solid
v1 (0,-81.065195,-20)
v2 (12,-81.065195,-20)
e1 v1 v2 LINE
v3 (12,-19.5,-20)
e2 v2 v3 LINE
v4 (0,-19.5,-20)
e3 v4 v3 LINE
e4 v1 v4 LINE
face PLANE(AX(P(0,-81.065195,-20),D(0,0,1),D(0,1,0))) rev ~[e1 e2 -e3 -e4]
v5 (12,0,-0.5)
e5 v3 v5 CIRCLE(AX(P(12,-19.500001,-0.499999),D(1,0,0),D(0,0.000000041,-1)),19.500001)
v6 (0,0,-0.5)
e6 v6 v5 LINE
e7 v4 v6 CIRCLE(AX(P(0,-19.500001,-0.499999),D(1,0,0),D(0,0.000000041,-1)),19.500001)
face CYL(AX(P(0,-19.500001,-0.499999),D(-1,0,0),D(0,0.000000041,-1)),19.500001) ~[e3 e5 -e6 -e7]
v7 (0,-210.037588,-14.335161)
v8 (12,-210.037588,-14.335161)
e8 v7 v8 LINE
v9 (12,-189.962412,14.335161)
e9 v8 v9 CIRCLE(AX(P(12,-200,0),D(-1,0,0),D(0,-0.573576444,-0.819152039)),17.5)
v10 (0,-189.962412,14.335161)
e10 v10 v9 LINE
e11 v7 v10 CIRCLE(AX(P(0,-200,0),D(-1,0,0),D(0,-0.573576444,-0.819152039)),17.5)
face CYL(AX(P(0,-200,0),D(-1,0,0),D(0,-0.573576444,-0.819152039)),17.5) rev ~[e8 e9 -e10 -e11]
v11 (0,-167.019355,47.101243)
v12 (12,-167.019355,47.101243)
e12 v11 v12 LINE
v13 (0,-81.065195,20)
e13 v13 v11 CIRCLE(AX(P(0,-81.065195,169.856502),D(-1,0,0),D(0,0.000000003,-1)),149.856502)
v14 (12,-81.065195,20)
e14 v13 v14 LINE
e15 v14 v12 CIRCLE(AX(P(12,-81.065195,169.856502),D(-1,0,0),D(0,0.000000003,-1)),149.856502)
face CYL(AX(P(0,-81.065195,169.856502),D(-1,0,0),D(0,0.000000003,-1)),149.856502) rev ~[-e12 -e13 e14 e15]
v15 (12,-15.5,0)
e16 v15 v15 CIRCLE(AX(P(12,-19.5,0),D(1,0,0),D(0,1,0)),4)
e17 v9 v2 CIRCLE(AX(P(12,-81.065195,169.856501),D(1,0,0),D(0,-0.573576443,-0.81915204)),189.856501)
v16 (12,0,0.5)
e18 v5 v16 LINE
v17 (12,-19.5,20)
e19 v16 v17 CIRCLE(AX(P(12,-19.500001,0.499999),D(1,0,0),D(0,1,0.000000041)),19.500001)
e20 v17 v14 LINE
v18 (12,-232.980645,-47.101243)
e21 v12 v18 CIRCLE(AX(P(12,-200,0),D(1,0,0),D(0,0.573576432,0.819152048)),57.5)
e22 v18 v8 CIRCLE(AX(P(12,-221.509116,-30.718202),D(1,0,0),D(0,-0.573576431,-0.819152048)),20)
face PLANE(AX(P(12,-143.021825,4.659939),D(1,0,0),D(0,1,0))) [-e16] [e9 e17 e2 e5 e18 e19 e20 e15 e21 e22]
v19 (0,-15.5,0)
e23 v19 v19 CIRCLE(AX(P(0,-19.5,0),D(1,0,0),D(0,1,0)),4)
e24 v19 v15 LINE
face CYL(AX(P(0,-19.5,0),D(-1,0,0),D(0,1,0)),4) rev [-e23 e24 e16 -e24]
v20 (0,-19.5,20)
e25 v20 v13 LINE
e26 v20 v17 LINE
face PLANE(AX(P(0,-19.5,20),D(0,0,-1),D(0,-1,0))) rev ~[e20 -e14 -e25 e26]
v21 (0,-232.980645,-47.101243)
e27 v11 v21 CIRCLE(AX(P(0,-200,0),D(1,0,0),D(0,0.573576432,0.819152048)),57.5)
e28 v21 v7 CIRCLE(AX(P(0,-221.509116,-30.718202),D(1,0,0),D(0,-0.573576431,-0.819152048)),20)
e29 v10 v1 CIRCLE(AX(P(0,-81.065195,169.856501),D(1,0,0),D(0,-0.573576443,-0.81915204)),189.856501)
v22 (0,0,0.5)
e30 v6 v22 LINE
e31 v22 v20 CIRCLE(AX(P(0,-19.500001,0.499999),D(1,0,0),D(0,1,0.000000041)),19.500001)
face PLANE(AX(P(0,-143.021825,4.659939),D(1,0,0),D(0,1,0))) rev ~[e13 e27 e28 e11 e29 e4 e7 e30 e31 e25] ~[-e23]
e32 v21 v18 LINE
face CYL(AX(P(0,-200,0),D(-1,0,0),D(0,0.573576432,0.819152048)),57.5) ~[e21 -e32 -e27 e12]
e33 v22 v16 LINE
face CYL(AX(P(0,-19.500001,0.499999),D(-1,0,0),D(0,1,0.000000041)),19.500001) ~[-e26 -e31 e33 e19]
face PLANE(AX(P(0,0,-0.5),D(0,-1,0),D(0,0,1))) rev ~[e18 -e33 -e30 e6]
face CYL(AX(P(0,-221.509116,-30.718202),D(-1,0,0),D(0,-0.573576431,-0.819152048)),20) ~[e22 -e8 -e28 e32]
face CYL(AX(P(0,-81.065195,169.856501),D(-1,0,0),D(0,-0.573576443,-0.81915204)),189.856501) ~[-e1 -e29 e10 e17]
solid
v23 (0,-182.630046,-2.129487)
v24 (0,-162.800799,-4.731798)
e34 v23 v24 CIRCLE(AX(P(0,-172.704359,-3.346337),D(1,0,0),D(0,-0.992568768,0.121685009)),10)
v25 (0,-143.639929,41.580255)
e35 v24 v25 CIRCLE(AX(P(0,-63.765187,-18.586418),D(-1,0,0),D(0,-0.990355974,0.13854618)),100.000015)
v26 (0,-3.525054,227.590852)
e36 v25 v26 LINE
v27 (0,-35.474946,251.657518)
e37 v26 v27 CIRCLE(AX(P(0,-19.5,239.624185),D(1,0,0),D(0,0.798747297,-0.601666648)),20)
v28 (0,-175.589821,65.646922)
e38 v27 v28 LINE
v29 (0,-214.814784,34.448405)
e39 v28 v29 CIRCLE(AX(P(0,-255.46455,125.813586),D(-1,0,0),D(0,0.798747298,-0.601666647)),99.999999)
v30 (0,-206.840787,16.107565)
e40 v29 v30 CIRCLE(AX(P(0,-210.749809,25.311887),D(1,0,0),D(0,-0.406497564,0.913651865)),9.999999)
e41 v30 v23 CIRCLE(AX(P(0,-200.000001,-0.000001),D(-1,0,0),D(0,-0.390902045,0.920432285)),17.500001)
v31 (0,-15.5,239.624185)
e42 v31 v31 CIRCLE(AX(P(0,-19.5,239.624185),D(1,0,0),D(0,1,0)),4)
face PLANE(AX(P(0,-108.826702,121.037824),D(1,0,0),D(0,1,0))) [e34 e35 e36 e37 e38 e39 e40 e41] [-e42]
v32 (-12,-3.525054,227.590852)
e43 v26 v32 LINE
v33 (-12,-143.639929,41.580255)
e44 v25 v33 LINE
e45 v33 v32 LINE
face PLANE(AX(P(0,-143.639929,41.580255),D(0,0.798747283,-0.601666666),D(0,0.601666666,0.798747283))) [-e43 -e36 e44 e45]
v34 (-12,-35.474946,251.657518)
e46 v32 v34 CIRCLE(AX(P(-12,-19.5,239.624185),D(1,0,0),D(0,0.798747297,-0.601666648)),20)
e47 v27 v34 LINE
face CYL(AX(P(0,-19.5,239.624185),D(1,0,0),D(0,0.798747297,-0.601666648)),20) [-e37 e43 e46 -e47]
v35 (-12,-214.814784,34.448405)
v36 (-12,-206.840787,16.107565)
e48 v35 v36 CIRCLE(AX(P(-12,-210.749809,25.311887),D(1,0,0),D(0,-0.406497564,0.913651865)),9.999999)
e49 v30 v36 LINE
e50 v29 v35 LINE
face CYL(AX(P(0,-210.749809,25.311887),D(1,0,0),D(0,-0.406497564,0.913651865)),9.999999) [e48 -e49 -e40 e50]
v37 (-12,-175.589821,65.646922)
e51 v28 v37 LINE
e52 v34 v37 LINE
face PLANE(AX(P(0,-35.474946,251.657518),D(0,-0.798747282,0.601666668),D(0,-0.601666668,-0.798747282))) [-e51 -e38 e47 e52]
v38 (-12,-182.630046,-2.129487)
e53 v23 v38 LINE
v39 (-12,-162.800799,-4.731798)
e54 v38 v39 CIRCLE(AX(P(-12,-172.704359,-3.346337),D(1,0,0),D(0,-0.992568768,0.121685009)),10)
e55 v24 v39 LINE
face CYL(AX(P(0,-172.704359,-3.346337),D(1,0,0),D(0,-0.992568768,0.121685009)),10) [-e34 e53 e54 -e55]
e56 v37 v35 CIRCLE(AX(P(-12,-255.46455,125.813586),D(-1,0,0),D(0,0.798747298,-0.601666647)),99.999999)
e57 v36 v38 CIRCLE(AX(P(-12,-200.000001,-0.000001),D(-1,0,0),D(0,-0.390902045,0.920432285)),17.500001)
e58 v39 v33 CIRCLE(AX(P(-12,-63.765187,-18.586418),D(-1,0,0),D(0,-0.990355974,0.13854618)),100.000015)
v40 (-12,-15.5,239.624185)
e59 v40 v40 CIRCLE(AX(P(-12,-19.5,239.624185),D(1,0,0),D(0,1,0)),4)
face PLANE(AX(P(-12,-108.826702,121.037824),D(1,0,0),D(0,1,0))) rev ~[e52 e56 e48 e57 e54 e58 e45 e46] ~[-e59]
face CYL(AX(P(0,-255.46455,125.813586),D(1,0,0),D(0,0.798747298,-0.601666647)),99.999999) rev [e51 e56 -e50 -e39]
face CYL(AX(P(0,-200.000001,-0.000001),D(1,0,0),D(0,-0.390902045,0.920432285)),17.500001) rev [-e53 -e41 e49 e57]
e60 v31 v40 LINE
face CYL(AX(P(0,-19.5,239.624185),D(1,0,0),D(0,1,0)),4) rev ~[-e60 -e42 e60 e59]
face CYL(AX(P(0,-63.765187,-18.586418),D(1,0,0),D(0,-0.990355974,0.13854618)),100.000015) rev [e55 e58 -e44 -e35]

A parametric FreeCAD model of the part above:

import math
import FreeCAD as App
import Part
import Sketcher

doc = App.newDocument("Part")
params = doc.addObject("Spreadsheet::Sheet", "Params")
for row, (alias, value) in enumerate([
    ("sketch1_diameter", "8 mm"),
    ("sketch1_radius", "20 mm"),
    ("sketch1_radius2", "17.5 mm"),
    ("sketch1_radius3", "19.500001 mm"),
    ("pad1_length", "12 mm"),
    ("sketch2_diameter", "8 mm"),
    ("sketch2_radius", "10 mm"),
    ("sketch2_radius2", "20 mm"),
    ("sketch2_radius3", "99.999999 mm"),
    ("sketch2_radius4", "17.500001 mm"),
    ("pad2_length", "12 mm"),
], start=1):
    params.set(f"A{row}", alias)
    params.set(f"B{row}", "=" + value)
    params.setAlias(f"B{row}", alias)

body = doc.addObject("PartDesign::Body", "Body")

sketch1 = body.newObject("Sketcher::SketchObject", "Sketch")
sketch1.AttachmentSupport = (doc.getObject("YZ_Plane"), [""])
sketch1.MapMode = "FlatFace"
sketch1.addGeometry([
    Part.ArcOfCircle(Part.Circle(App.Vector(-200, 0, 0), App.Vector(0, 0, 1), 17.5), math.radians(55), math.radians(235)),
    Part.ArcOfCircle(Part.Circle(App.Vector(-81.1, 169.9, 0), App.Vector(0, 0, 1), 189.9), math.radians(-125), math.radians(-90)),
    Part.LineSegment(App.Vector(-81.1, -20, 0), App.Vector(-19.5, -20, 0)),
    Part.ArcOfCircle(Part.Circle(App.Vector(-19.5, -0.5, 0), App.Vector(0, 0, 1), 19.5), math.radians(-90), math.radians(0)),
    Part.LineSegment(App.Vector(0, -0.5, 0), App.Vector(0, 0.5, 0)),
    Part.ArcOfCircle(Part.Circle(App.Vector(-19.5, 0.5, 0), App.Vector(0, 0, 1), 19.5), math.radians(0), math.radians(90)),
    Part.LineSegment(App.Vector(-19.5, 20, 0), App.Vector(-81.1, 20, 0)),
    Part.ArcOfCircle(Part.Circle(App.Vector(-81.1, 169.9, 0), App.Vector(0, 0, 1), 149.9), math.radians(-125), math.radians(-90)),
    Part.ArcOfCircle(Part.Circle(App.Vector(-200, 0, 0), App.Vector(0, 0, 1), 57.5), math.radians(55), math.radians(235)),
    Part.ArcOfCircle(Part.Circle(App.Vector(-221.5, -30.7, 0), App.Vector(0, 0, 1), 20), math.radians(-125), math.radians(55)),
    Part.Circle(App.Vector(-19.5, 0, 0), App.Vector(0, 0, 1), 4),
], False)
sketch1.addConstraint([
    Sketcher.Constraint("Tangent", 0, 1, 1, 1),
    Sketcher.Constraint("Tangent", 1, 2, 2, 1),
    Sketcher.Constraint("Tangent", 2, 2, 3, 1),
    Sketcher.Constraint("Tangent", 3, 2, 4, 1),
    Sketcher.Constraint("Tangent", 4, 2, 5, 1),
    Sketcher.Constraint("Tangent", 5, 2, 6, 1),
    Sketcher.Constraint("Tangent", 6, 2, 7, 2),
    Sketcher.Constraint("Tangent", 7, 1, 8, 1),
    Sketcher.Constraint("Tangent", 8, 2, 9, 1),
    Sketcher.Constraint("Tangent", 9, 2, 0, 2),
    Sketcher.Constraint("Horizontal", 2),
    Sketcher.Constraint("Vertical", 4),
    Sketcher.Constraint("Horizontal", 6),
    Sketcher.Constraint("Coincident", 7, 3, 1, 3),
    Sketcher.Constraint("Coincident", 8, 3, 0, 3),
    Sketcher.Constraint("Equal", 3, 5),
    Sketcher.Constraint("Symmetric", 3, 2, 4, 2, -1, 1),
    Sketcher.Constraint("PointOnObject", 0, 3, -1),
    Sketcher.Constraint("PointOnObject", 10, 3, -1),
    Sketcher.Constraint("Vertical", 5, 3, 10, 3),
    Sketcher.Constraint("Diameter", 10, 8.0),
    Sketcher.Constraint("Radius", 9, 20.0),
    Sketcher.Constraint("Radius", 0, 17.5),
    Sketcher.Constraint("Radius", 3, 19.500001),
    Sketcher.Constraint("DistanceX", 0, 3, -1, 1, 200.0),
    Sketcher.Constraint("Radius", 1, 189.856501),
    Sketcher.Constraint("DistanceY", 9, 3, 5, 3, 31.218201),
])
sketch1.setExpression("Constraints[20]", "Params.sketch1_diameter")
sketch1.setExpression("Constraints[21]", "Params.sketch1_radius")
sketch1.setExpression("Constraints[22]", "Params.sketch1_radius2")
sketch1.setExpression("Constraints[23]", "Params.sketch1_radius3")
pad1 = body.newObject("PartDesign::Pad", "Pad")
pad1.Profile = sketch1
pad1.setExpression("Length", "Params.pad1_length")
body2 = doc.addObject("PartDesign::Body", "Body001")

sketch2 = body2.newObject("Sketcher::SketchObject", "Sketch001")
sketch2.AttachmentSupport = (doc.getObject("YZ_Plane001"), [""])
sketch2.MapMode = "FlatFace"
sketch2.addGeometry([
    Part.ArcOfCircle(Part.Circle(App.Vector(-200, 0, 0), App.Vector(0, 0, 1), 17.5), math.radians(-7), math.radians(113)),
    Part.ArcOfCircle(Part.Circle(App.Vector(-172.7, -3.3, 0), App.Vector(0, 0, 1), 10), math.radians(173), math.radians(352)),
    Part.ArcOfCircle(Part.Circle(App.Vector(-63.8, -18.6, 0), App.Vector(0, 0, 1), 100), math.radians(143), math.radians(172)),
    Part.LineSegment(App.Vector(-143.6, 41.6, 0), App.Vector(-3.5, 227.6, 0)),
    Part.ArcOfCircle(Part.Circle(App.Vector(-19.5, 239.6, 0), App.Vector(0, 0, 1), 20), math.radians(-37), math.radians(143)),
    Part.LineSegment(App.Vector(-35.5, 251.7, 0), App.Vector(-175.6, 65.6, 0)),
    Part.ArcOfCircle(Part.Circle(App.Vector(-255.5, 125.8, 0), App.Vector(0, 0, 1), 100), math.radians(-66), math.radians(-37)),
    Part.ArcOfCircle(Part.Circle(App.Vector(-210.7, 25.3, 0), App.Vector(0, 0, 1), 10), math.radians(114), math.radians(293)),
    Part.Circle(App.Vector(-19.5, 239.6, 0), App.Vector(0, 0, 1), 4),
], False)
sketch2.addConstraint([
    Sketcher.Constraint("Tangent", 0, 1, 1, 1),
    Sketcher.Constraint("Tangent", 1, 2, 2, 2),
    Sketcher.Constraint("Tangent", 2, 1, 3, 1),
    Sketcher.Constraint("Tangent", 3, 2, 4, 1),
    Sketcher.Constraint("Tangent", 4, 2, 5, 1),
    Sketcher.Constraint("Tangent", 5, 2, 6, 2),
    Sketcher.Constraint("Tangent", 6, 1, 7, 1),
    Sketcher.Constraint("Tangent", 7, 2, 0, 2),
    Sketcher.Constraint("Coincident", 8, 3, 4, 3),
    Sketcher.Constraint("Equal", 1, 7),
    Sketcher.Constraint("PointOnObject", 0, 3, -1),
    Sketcher.Constraint("Parallel", 3, 5),
    Sketcher.Constraint("Equal", 3, 5),
    Sketcher.Constraint("Diameter", 8, 8.0),
    Sketcher.Constraint("Radius", 1, 10.0),
    Sketcher.Constraint("Radius", 4, 20.0),
    Sketcher.Constraint("Radius", 6, 99.999999),
    Sketcher.Constraint("Radius", 0, 17.500001),
    Sketcher.Constraint("DistanceX", 0, 3, -1, 1, 200.000001),
    Sketcher.Constraint("DistanceX", 4, 3, -1, 1, 19.5),
    Sketcher.Constraint("Radius", 2, 100.000015),
    Sketcher.Constraint("DistanceX", 1, 2, -1, 1, 162.800799),
    Sketcher.Constraint("DistanceY", 6, 3, 4, 3, 113.810599),
    Sketcher.Constraint("DistanceY", 7, 3, 6, 3, 100.501699),
])
sketch2.setExpression("Constraints[13]", "Params.sketch2_diameter")
sketch2.setExpression("Constraints[14]", "Params.sketch2_radius")
sketch2.setExpression("Constraints[15]", "Params.sketch2_radius2")
sketch2.setExpression("Constraints[16]", "Params.sketch2_radius3")
sketch2.setExpression("Constraints[17]", "Params.sketch2_radius4")
pad2 = body2.newObject("PartDesign::Pad", "Pad001")
pad2.Profile = sketch2
pad2.setExpression("Length", "Params.pad2_length")
pad2.Reversed = True

doc.recompute()
